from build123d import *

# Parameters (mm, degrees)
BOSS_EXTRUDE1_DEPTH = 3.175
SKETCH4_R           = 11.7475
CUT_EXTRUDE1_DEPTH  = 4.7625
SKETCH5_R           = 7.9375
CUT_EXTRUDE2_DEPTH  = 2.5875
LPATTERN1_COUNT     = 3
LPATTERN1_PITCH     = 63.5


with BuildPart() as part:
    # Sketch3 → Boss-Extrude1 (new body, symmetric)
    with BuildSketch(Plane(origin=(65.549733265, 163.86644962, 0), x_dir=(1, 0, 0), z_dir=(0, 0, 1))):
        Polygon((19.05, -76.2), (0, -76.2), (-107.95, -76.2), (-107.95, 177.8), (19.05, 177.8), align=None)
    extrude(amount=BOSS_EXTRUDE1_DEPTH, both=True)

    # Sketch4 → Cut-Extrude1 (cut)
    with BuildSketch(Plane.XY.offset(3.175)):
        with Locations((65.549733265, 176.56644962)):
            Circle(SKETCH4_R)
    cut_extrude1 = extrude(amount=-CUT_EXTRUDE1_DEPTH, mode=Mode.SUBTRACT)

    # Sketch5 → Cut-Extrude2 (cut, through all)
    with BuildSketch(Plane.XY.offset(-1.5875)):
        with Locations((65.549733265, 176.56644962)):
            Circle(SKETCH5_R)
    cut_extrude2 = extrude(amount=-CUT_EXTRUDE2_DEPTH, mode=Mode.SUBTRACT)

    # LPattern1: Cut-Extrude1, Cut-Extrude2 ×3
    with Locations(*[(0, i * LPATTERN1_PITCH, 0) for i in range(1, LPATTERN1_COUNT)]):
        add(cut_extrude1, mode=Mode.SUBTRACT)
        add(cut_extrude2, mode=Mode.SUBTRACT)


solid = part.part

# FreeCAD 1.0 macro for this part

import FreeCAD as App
import Part
import Sketcher
Q = App.Units.Quantity

doc = App.newDocument("Part")
body = doc.addObject("PartDesign::Body", "Body")

sketch1 = body.newObject("Sketcher::SketchObject", "Sketch")
sketch1.AttachmentSupport = (doc.getObject("XY_Plane"), [""])
sketch1.MapMode = "FlatFace"
sketch1.addGeometry([
    Part.LineSegment(App.Vector(-42, 88, 0), App.Vector(85, 88, 0)),
    Part.LineSegment(App.Vector(85, 88, 0), App.Vector(85, 342, 0)),
    Part.LineSegment(App.Vector(85, 342, 0), App.Vector(-42, 342, 0)),
    Part.LineSegment(App.Vector(-42, 342, 0), App.Vector(-42, 88, 0)),
], False)
sketch1.addConstraint([
    Sketcher.Constraint("Coincident", 0, 2, 1, 1),
    Sketcher.Constraint("Coincident", 1, 2, 2, 1),
    Sketcher.Constraint("Coincident", 2, 2, 3, 1),
    Sketcher.Constraint("Coincident", 3, 2, 0, 1),
    Sketcher.Constraint("Horizontal", 0),
    Sketcher.Constraint("Vertical", 1),
    Sketcher.Constraint("Horizontal", 2),
    Sketcher.Constraint("Vertical", 3),
    Sketcher.Constraint("DistanceX", 0, 1, 0, 2, Q("5 in")),
    Sketcher.Constraint("DistanceY", 1, 1, 1, 2, Q("10 in")),
    Sketcher.Constraint("DistanceY", -1, 1, 0, 2, Q("87.66645 mm")),
    Sketcher.Constraint("DistanceX", -1, 1, 0, 2, Q("84.599733 mm")),
])
pad1 = body.newObject("PartDesign::Pad", "Pad")
pad1.Profile = sketch1
pad1.Length = Q("0.25 in")
pad1.Midplane = True

sketch2 = body.newObject("Sketcher::SketchObject", "Sketch001")
sketch2.AttachmentSupport = (doc.getObject("XY_Plane"), [""])
sketch2.MapMode = "FlatFace"
sketch2.AttachmentOffset = App.Placement(App.Vector(0, 0, 0.125 * 25.4), App.Rotation())
sketch2.addGeometry(Part.Circle(App.Vector(66, 177, 0), App.Vector(0, 0, 1), 12), False)
sketch2.addConstraint([
    Sketcher.Constraint("Diameter", 0, Q("0.925 in")),
    Sketcher.Constraint("DistanceY", -1, 1, 0, 3, Q("176.56645 mm")),
    Sketcher.Constraint("DistanceX", -1, 1, 0, 3, Q("65.549733 mm")),
])
pocket1 = body.newObject("PartDesign::Pocket", "Pocket")
pocket1.Profile = sketch2
pocket1.Length = Q("0.1875 in")

sketch3 = body.newObject("Sketcher::SketchObject", "Sketch002")
sketch3.AttachmentSupport = (doc.getObject("XY_Plane"), [""])
sketch3.MapMode = "FlatFace"
sketch3.AttachmentOffset = App.Placement(App.Vector(0, 0, -0.0625 * 25.4), App.Rotation())
sketch3.addGeometry(Part.Circle(App.Vector(66, 177, 0), App.Vector(0, 0, 1), 8), False)
sketch3.addConstraint([
    Sketcher.Constraint("Diameter", 0, Q("0.625 in")),
    Sketcher.Constraint("DistanceY", -1, 1, 0, 3, Q("176.56645 mm")),
    Sketcher.Constraint("DistanceX", -1, 1, 0, 3, Q("65.549733 mm")),
])
pocket2 = body.newObject("PartDesign::Pocket", "Pocket001")
pocket2.Profile = sketch3
pocket2.Type = "ThroughAll"
doc.recompute()

linearpattern = body.newObject("PartDesign::LinearPattern", "LinearPattern")
linearpattern.Originals = [pocket1, pocket2]
linearpattern.Direction = (doc.getObject("Y_Axis"), [""])
linearpattern.Mode = "offset"
linearpattern.Offset = Q("2.5 in")
linearpattern.Occurrences = 3
body.Tip = linearpattern

doc.recompute()
